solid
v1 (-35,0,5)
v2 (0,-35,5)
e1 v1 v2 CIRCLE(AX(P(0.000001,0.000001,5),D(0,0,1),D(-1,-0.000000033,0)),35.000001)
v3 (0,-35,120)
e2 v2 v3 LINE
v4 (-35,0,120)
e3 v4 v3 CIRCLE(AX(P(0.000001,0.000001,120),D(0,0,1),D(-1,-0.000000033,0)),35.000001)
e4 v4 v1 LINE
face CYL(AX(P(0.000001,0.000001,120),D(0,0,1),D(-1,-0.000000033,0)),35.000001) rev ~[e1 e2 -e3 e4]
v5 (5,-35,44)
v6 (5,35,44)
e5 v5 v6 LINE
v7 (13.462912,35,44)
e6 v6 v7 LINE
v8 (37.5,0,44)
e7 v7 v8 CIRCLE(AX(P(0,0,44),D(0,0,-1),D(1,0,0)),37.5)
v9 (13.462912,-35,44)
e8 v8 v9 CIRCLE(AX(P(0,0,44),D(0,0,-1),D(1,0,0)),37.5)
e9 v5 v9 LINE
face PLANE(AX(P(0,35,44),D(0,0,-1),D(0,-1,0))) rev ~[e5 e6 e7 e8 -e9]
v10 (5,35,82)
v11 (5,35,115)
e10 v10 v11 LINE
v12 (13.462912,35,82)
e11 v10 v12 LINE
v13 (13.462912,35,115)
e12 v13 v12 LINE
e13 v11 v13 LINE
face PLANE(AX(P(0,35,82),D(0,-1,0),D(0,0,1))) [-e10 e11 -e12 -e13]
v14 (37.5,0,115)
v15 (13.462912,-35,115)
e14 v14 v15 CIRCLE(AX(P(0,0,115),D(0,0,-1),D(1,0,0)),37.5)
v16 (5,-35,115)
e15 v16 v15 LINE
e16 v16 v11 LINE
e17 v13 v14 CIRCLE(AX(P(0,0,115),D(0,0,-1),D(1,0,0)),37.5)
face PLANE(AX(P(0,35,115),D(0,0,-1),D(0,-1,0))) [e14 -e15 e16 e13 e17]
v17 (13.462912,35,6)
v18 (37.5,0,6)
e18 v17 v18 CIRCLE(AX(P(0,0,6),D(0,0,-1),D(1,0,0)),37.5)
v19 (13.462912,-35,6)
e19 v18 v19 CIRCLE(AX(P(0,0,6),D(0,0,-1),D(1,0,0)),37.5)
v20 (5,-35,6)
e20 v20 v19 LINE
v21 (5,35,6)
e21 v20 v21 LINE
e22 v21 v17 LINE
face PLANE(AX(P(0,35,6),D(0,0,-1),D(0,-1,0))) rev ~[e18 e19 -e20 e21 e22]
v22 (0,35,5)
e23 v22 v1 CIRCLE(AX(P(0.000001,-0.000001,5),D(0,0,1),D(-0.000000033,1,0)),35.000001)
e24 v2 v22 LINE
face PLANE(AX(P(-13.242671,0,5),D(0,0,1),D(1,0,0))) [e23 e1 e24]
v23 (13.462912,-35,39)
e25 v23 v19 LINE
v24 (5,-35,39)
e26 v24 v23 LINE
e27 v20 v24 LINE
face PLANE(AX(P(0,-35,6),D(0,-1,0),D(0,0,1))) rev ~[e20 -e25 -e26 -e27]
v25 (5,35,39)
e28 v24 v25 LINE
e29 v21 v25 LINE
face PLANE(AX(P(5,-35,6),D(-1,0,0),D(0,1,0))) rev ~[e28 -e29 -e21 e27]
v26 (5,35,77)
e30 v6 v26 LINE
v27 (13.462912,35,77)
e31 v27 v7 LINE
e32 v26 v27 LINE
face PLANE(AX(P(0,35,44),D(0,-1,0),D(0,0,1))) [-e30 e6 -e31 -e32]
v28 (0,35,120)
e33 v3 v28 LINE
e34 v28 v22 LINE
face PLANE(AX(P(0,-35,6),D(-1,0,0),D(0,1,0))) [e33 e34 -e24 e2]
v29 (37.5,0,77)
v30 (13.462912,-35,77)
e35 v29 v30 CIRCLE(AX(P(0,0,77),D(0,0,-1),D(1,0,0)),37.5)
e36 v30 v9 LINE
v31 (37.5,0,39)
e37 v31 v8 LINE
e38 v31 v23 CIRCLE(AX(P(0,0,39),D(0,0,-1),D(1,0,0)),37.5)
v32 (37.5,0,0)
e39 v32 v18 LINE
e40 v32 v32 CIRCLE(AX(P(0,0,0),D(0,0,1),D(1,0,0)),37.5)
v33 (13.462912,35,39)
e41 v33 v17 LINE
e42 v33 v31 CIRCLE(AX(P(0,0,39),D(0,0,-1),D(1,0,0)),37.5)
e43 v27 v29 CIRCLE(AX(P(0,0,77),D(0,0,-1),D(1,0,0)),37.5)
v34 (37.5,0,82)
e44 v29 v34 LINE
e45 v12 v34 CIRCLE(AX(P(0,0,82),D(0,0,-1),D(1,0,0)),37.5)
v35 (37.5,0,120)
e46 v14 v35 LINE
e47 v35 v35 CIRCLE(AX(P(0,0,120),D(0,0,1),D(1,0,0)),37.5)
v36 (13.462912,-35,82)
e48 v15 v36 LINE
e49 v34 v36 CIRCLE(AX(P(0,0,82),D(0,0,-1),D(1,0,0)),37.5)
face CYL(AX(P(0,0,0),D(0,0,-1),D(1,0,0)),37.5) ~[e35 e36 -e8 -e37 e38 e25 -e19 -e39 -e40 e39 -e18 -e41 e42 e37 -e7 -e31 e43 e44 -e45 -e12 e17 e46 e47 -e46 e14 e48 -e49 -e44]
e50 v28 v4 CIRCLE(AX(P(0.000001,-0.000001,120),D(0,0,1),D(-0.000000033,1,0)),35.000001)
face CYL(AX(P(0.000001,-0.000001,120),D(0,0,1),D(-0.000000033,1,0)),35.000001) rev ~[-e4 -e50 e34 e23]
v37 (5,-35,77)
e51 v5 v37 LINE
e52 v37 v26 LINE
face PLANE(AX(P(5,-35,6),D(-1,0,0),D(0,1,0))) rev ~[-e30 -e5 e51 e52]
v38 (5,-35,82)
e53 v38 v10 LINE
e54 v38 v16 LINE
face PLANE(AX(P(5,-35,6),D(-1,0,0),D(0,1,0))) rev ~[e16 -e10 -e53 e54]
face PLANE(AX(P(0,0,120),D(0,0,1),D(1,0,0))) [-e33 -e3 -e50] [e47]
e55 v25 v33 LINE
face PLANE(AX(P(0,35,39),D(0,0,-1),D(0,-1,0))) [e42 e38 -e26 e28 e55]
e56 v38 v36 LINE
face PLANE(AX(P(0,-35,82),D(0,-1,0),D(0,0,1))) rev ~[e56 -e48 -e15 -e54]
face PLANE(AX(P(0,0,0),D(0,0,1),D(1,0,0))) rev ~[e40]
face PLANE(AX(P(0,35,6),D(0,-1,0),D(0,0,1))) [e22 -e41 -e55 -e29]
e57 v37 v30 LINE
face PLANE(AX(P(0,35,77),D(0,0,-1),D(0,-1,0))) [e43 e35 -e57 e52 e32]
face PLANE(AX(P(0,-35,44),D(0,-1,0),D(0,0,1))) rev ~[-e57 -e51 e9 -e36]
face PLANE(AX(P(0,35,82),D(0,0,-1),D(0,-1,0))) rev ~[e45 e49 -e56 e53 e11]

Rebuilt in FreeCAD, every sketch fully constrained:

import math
import FreeCAD as App
import Part
import Sketcher
from FreeCAD import Vector
Q = App.Units.Quantity

doc = App.newDocument("Part")
params = doc.addObject("Spreadsheet::Sheet", "Params")
for row, (alias, value) in enumerate([
    ("sketch1_diameter", "75 mm"),
    ("pad1_length", "120 mm"),
    ("sketch2_radius", "35.000001 mm"),
    ("pocket1_length", "115 mm"),
    ("sketch3_width", "70 mm"),
    ("sketch3_height", "33 mm"),
    ("pocket2_length", "40 mm"),
    ("sketch4_width", "5 mm"),
    ("sketch4_height", "70 mm"),
    ("pad2_length", "109 mm"),
], start=1):
    params.set(f"A{row}", alias)
    params.set(f"B{row}", "=" + value)
    params.setAlias(f"B{row}", alias)

body = doc.addObject("PartDesign::Body", "Body")

# Sketch on XY plane
sketch1 = body.newObject("Sketcher::SketchObject", "Sketch")
sketch1.AttachmentSupport = (doc.getObject("XY_Plane"), [""])
sketch1.MapMode = "FlatFace"
sketch1.addGeometry(Part.Circle(Vector(0, 0, 0), Vector(0, 0, 1), 38), False)
sketch1.addConstraint([
    Sketcher.Constraint("Coincident", 0, 3, -1, 1),
    Sketcher.Constraint("Diameter", 0, Q("75 mm")),
])
sketch1.setExpression("Constraints[1]", "Params.sketch1_diameter")
pad1 = body.newObject("PartDesign::Pad", "Pad")
pad1.Profile = sketch1
pad1.setExpression("Length", "Params.pad1_length")

# Sketch on XY plane
sketch2 = body.newObject("Sketcher::SketchObject", "Sketch001")
sketch2.AttachmentSupport = (doc.getObject("XY_Plane"), [""])
sketch2.MapMode = "FlatFace"
sketch2.AttachmentOffset = App.Placement(Vector(0, 0, 120), App.Rotation())
sketch2.addGeometry([
    Part.LineSegment(Vector(0, -35, 0), Vector(0, 35, 0)),
    Part.ArcOfCircle(Part.Circle(Vector(0, 0, 0), Vector(0, 0, 1), 35), math.radians(90), math.radians(180)),
    Part.ArcOfCircle(Part.Circle(Vector(0, 0, 0), Vector(0, 0, 1), 35), math.radians(-180), math.radians(-90)),
], False)
sketch2.addConstraint([
    Sketcher.Constraint("Coincident", 0, 2, 1, 1),
    Sketcher.Constraint("Tangent", 1, 2, 2, 1),
    Sketcher.Constraint("Coincident", 2, 2, 0, 1),
    Sketcher.Constraint("Vertical", 0),
    Sketcher.Constraint("Coincident", 1, 3, -1, 1),
    Sketcher.Constraint("Equal", 1, 2),
    Sketcher.Constraint("PointOnObject", 0, 2, -2),
    Sketcher.Constraint("PointOnObject", 1, 2, -1),
    Sketcher.Constraint("Radius", 1, Q("35.000001 mm")),
])
sketch2.setExpression("Constraints[8]", "Params.sketch2_radius")
pocket1 = body.newObject("PartDesign::Pocket", "Pocket")
pocket1.Profile = sketch2
pocket1.setExpression("Length", "Params.pocket1_length")

# Sketch on YZ plane
sketch3 = body.newObject("Sketcher::SketchObject", "Sketch002")
sketch3.AttachmentSupport = (doc.getObject("YZ_Plane"), [""])
sketch3.MapMode = "FlatFace"
sketch3.addGeometry([
    Part.LineSegment(Vector(35, 39, 0), Vector(35, 6, 0)),  # 0
    Part.LineSegment(Vector(35, 6, 0), Vector(-35, 6, 0)),  # 1
    Part.LineSegment(Vector(-35, 6, 0), Vector(-35, 39, 0)),  # 2
    Part.LineSegment(Vector(-35, 39, 0), Vector(35, 39, 0)),  # 3
    Part.LineSegment(Vector(35, 77, 0), Vector(35, 44, 0)),  # 4
    Part.LineSegment(Vector(35, 44, 0), Vector(-35, 44, 0)),  # 5
    Part.LineSegment(Vector(-35, 44, 0), Vector(-35, 77, 0)),  # 6
    Part.LineSegment(Vector(-35, 77, 0), Vector(35, 77, 0)),  # 7
    Part.LineSegment(Vector(35, 115, 0), Vector(35, 82, 0)),  # 8
    Part.LineSegment(Vector(35, 82, 0), Vector(-35, 82, 0)),  # 9
    Part.LineSegment(Vector(-35, 82, 0), Vector(-35, 115, 0)),  # 10
    Part.LineSegment(Vector(-35, 115, 0), Vector(35, 115, 0)),  # 11
], False)
sketch3.addConstraint([
    Sketcher.Constraint("Coincident", 0, 2, 1, 1),
    Sketcher.Constraint("Coincident", 1, 2, 2, 1),
    Sketcher.Constraint("Coincident", 2, 2, 3, 1),
    Sketcher.Constraint("Coincident", 3, 2, 0, 1),
    Sketcher.Constraint("Coincident", 4, 2, 5, 1),
    Sketcher.Constraint("Coincident", 5, 2, 6, 1),
    Sketcher.Constraint("Coincident", 6, 2, 7, 1),
    Sketcher.Constraint("Coincident", 7, 2, 4, 1),
    Sketcher.Constraint("Coincident", 8, 2, 9, 1),
    Sketcher.Constraint("Coincident", 9, 2, 10, 1),
    Sketcher.Constraint("Coincident", 10, 2, 11, 1),
    Sketcher.Constraint("Coincident", 11, 2, 8, 1),
    Sketcher.Constraint("Vertical", 0),
    Sketcher.Constraint("Horizontal", 1),
    Sketcher.Constraint("Vertical", 2),
    Sketcher.Constraint("Horizontal", 3),
    Sketcher.Constraint("Vertical", 4),
    Sketcher.Constraint("Horizontal", 5),
    Sketcher.Constraint("Vertical", 6),
    Sketcher.Constraint("Horizontal", 7),
    Sketcher.Constraint("Vertical", 8),
    Sketcher.Constraint("Horizontal", 9),
    Sketcher.Constraint("Vertical", 10),
    Sketcher.Constraint("Horizontal", 11),
    Sketcher.Constraint("Vertical", 3, 2, 4, 2),
    Sketcher.Constraint("Vertical", 2, 2, 5, 2),
    Sketcher.Constraint("Vertical", 7, 2, 8, 2),
    Sketcher.Constraint("Vertical", 6, 2, 9, 2),
    Sketcher.Constraint("Equal", 2, 4),
    Sketcher.Constraint("Equal", 6, 8),
    Sketcher.Constraint("DistanceX", 1, 2, 1, 1, Q("70 mm")),
    Sketcher.Constraint("DistanceY", 0, 2, 0, 1, Q("33 mm")),
    Sketcher.Constraint("DistanceX", -1, 1, 0, 2, Q("35 mm")),
    Sketcher.Constraint("DistanceY", -1, 1, 0, 2, Q("6 mm")),
    Sketcher.Constraint("DistanceY", -1, 1, 4, 2, Q("44 mm")),
    Sketcher.Constraint("DistanceY", -1, 1, 8, 2, Q("82 mm")),
])
sketch3.setExpression("Constraints[30]", "Params.sketch3_width")
sketch3.setExpression("Constraints[31]", "Params.sketch3_height")
pocket2 = body.newObject("PartDesign::Pocket", "Pocket001")
pocket2.Profile = sketch3
pocket2.setExpression("Length", "Params.pocket2_length")
pocket2.Reversed = True

# Sketch on XY plane
sketch4 = body.newObject("Sketcher::SketchObject", "Sketch003")
sketch4.AttachmentSupport = (doc.getObject("XY_Plane"), [""])
sketch4.MapMode = "FlatFace"
sketch4.AttachmentOffset = App.Placement(Vector(0, 0, 6), App.Rotation())
sketch4.addGeometry([
    Part.LineSegment(Vector(0, 35, 0), Vector(0, -35, 0)),
    Part.LineSegment(Vector(0, -35, 0), Vector(5, -35, 0)),
    Part.LineSegment(Vector(5, -35, 0), Vector(5, 35, 0)),
    Part.LineSegment(Vector(5, 35, 0), Vector(0, 35, 0)),
], False)
sketch4.addConstraint([
    Sketcher.Constraint("Coincident", 0, 2, 1, 1),
    Sketcher.Constraint("Coincident", 1, 2, 2, 1),
    Sketcher.Constraint("Coincident", 2, 2, 3, 1),
    Sketcher.Constraint("Coincident", 3, 2, 0, 1),
    Sketcher.Constraint("Vertical", 0),
    Sketcher.Constraint("Horizontal", 1),
    Sketcher.Constraint("Vertical", 2),
    Sketcher.Constraint("Horizontal", 3),
    Sketcher.Constraint("Symmetric", 0, 2, 3, 2, -1, 1),
    Sketcher.Constraint("DistanceX", 1, 1, 1, 2, Q("5 mm")),
    Sketcher.Constraint("DistanceY", 0, 2, 0, 1, Q("70 mm")),
])
sketch4.setExpression("Constraints[9]", "Params.sketch4_width")
sketch4.setExpression("Constraints[10]", "Params.sketch4_height")
pad2 = body.newObject("PartDesign::Pad", "Pad001")
pad2.Profile = sketch4
pad2.setExpression("Length", "Params.pad2_length")

doc.recompute()
